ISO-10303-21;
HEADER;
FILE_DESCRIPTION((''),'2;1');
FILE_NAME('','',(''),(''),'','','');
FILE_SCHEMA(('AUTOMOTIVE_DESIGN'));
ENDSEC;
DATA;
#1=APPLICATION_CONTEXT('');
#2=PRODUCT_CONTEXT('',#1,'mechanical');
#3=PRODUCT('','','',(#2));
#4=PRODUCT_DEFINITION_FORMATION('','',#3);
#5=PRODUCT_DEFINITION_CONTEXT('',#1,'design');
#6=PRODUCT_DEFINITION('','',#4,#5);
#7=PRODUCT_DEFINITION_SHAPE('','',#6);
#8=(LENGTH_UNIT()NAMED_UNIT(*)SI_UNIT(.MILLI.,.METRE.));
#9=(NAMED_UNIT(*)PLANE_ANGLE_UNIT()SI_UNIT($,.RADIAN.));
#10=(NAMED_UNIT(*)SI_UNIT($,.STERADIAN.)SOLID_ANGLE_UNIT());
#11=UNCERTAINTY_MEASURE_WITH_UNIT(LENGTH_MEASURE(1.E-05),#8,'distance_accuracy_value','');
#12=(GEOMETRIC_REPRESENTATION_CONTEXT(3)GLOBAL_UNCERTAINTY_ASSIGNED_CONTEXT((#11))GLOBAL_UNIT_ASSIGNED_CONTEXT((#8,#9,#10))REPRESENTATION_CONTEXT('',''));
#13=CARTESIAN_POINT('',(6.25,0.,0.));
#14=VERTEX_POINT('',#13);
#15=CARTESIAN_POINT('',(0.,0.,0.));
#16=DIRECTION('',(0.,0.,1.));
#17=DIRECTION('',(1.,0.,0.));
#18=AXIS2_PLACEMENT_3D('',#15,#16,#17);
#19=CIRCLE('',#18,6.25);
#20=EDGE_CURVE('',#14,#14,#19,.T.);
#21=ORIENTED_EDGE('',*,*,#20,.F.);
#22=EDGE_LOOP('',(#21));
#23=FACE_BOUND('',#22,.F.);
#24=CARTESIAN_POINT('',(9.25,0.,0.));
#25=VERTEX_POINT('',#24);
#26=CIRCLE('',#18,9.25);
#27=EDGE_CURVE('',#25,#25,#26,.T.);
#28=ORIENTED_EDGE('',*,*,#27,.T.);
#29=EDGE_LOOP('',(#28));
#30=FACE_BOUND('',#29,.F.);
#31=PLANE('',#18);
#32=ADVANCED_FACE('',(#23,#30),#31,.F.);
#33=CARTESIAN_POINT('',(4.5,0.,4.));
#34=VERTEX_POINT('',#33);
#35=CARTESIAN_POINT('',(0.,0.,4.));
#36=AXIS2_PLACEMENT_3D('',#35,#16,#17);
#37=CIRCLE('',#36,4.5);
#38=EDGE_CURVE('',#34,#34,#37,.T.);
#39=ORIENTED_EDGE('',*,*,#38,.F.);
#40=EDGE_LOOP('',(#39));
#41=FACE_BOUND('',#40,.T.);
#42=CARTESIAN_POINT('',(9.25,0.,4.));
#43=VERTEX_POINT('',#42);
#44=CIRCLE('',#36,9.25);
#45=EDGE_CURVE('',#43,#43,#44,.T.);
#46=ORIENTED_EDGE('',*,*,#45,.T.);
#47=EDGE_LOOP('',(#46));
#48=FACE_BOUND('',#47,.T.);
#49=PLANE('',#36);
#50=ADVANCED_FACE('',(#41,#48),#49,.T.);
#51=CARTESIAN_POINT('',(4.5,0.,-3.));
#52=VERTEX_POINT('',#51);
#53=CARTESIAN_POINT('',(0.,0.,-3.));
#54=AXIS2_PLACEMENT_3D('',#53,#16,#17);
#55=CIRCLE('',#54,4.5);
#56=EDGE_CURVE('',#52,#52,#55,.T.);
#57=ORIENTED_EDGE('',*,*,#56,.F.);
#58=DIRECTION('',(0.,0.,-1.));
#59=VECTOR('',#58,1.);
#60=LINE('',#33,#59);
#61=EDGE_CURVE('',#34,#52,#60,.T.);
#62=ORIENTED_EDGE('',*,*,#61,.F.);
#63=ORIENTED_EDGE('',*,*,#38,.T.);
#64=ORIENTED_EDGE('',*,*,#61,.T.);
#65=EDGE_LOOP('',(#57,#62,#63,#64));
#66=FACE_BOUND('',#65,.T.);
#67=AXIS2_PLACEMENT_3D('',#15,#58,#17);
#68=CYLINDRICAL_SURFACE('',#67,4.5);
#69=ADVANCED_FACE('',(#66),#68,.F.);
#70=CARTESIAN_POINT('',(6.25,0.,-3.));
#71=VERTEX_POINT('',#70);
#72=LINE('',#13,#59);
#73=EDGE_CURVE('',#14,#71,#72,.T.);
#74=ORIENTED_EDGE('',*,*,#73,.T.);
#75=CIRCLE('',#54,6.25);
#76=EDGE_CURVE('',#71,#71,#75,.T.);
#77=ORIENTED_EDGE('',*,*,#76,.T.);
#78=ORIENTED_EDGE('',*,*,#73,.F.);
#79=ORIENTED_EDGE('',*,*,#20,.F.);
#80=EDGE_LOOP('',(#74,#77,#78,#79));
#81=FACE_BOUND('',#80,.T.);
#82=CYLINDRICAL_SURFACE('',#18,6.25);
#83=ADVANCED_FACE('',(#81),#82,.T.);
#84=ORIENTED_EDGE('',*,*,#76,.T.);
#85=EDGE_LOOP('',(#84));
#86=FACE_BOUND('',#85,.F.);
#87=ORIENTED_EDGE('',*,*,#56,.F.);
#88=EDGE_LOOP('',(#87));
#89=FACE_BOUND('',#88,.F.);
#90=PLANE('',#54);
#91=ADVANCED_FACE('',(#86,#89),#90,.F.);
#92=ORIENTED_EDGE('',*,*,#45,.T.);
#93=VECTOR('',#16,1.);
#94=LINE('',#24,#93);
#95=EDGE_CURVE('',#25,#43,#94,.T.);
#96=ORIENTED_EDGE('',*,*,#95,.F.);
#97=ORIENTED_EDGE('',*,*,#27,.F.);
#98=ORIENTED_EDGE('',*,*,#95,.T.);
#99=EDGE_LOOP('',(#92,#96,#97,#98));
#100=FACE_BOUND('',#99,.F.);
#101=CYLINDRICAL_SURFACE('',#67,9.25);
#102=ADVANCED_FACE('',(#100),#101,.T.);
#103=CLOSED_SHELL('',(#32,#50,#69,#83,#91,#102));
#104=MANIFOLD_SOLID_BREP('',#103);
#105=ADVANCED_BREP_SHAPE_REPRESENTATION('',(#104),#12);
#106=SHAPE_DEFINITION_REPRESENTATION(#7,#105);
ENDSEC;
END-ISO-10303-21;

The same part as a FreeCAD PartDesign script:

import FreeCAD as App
import Part
import Sketcher

V = App.Vector
Q = App.Units.Quantity

doc = App.newDocument("Part")
params = doc.addObject("Spreadsheet::Sheet", "Params")
for row, (alias, value) in enumerate([
    ("sketch1_diameter", "9 mm"),
    ("sketch1_diameter2", "12.5 mm"),
    ("pad1_length", "3 mm"),
    ("pad1_length2", "4 mm"),
    ("sketch2_diameter", "18.5 mm"),
    ("sketch2_diameter2", "12.5 mm"),
    ("pad2_length", "4 mm"),
], start=1):
    params.set(f"A{row}", alias)
    params.set(f"B{row}", "=" + value)
    params.setAlias(f"B{row}", alias)

body = doc.addObject("PartDesign::Body", "Body")

# Sketch on XY plane
sketch1 = body.newObject("Sketcher::SketchObject", "Sketch")
sketch1.AttachmentSupport = (doc.getObject("XY_Plane"), [""])
sketch1.MapMode = "FlatFace"
sketch1.addGeometry([
    Part.Circle(V(0, 0, 0), V(0, 0, 1), 6.2),
    Part.Circle(V(0, 0, 0), V(0, 0, 1), 4.5),
], False)
sketch1.addConstraint([
    Sketcher.Constraint("Coincident", 0, 3, -1, 1),
    Sketcher.Constraint("Coincident", 1, 3, -1, 1),
    Sketcher.Constraint("Diameter", 1, Q("9 mm")),
    Sketcher.Constraint("Diameter", 0, Q("12.5 mm")),
])
sketch1.setExpression("Constraints[2]", "Params.sketch1_diameter")
sketch1.setExpression("Constraints[3]", "Params.sketch1_diameter2")
pad1 = body.newObject("PartDesign::Pad", "Pad")
pad1.Profile = sketch1
pad1.Type = "TwoLengths"
pad1.setExpression("Length", "Params.pad1_length")
pad1.setExpression("Length2", "Params.pad1_length2")
pad1.Reversed = True

# Sketch on XY plane
sketch2 = body.newObject("Sketcher::SketchObject", "Sketch001")
sketch2.AttachmentSupport = (doc.getObject("XY_Plane"), [""])
sketch2.MapMode = "FlatFace"
sketch2.addGeometry([
    Part.Circle(V(0, 0, 0), V(0, 0, 1), 9),
    Part.Circle(V(0, 0, 0), V(0, 0, 1), 6),
], False)
sketch2.addConstraint([
    Sketcher.Constraint("Coincident", 0, 3, -1, 1),
    Sketcher.Constraint("Coincident", 1, 3, -1, 1),
    Sketcher.Constraint("Diameter", 0, Q("18.5 mm")),
    Sketcher.Constraint("Diameter", 1, Q("12.5 mm")),
])
sketch2.setExpression("Constraints[2]", "Params.sketch2_diameter")
sketch2.setExpression("Constraints[3]", "Params.sketch2_diameter2")
pad2 = body.newObject("PartDesign::Pad", "Pad001")
pad2.Profile = sketch2
pad2.setExpression("Length", "Params.pad2_length")

doc.recompute()
